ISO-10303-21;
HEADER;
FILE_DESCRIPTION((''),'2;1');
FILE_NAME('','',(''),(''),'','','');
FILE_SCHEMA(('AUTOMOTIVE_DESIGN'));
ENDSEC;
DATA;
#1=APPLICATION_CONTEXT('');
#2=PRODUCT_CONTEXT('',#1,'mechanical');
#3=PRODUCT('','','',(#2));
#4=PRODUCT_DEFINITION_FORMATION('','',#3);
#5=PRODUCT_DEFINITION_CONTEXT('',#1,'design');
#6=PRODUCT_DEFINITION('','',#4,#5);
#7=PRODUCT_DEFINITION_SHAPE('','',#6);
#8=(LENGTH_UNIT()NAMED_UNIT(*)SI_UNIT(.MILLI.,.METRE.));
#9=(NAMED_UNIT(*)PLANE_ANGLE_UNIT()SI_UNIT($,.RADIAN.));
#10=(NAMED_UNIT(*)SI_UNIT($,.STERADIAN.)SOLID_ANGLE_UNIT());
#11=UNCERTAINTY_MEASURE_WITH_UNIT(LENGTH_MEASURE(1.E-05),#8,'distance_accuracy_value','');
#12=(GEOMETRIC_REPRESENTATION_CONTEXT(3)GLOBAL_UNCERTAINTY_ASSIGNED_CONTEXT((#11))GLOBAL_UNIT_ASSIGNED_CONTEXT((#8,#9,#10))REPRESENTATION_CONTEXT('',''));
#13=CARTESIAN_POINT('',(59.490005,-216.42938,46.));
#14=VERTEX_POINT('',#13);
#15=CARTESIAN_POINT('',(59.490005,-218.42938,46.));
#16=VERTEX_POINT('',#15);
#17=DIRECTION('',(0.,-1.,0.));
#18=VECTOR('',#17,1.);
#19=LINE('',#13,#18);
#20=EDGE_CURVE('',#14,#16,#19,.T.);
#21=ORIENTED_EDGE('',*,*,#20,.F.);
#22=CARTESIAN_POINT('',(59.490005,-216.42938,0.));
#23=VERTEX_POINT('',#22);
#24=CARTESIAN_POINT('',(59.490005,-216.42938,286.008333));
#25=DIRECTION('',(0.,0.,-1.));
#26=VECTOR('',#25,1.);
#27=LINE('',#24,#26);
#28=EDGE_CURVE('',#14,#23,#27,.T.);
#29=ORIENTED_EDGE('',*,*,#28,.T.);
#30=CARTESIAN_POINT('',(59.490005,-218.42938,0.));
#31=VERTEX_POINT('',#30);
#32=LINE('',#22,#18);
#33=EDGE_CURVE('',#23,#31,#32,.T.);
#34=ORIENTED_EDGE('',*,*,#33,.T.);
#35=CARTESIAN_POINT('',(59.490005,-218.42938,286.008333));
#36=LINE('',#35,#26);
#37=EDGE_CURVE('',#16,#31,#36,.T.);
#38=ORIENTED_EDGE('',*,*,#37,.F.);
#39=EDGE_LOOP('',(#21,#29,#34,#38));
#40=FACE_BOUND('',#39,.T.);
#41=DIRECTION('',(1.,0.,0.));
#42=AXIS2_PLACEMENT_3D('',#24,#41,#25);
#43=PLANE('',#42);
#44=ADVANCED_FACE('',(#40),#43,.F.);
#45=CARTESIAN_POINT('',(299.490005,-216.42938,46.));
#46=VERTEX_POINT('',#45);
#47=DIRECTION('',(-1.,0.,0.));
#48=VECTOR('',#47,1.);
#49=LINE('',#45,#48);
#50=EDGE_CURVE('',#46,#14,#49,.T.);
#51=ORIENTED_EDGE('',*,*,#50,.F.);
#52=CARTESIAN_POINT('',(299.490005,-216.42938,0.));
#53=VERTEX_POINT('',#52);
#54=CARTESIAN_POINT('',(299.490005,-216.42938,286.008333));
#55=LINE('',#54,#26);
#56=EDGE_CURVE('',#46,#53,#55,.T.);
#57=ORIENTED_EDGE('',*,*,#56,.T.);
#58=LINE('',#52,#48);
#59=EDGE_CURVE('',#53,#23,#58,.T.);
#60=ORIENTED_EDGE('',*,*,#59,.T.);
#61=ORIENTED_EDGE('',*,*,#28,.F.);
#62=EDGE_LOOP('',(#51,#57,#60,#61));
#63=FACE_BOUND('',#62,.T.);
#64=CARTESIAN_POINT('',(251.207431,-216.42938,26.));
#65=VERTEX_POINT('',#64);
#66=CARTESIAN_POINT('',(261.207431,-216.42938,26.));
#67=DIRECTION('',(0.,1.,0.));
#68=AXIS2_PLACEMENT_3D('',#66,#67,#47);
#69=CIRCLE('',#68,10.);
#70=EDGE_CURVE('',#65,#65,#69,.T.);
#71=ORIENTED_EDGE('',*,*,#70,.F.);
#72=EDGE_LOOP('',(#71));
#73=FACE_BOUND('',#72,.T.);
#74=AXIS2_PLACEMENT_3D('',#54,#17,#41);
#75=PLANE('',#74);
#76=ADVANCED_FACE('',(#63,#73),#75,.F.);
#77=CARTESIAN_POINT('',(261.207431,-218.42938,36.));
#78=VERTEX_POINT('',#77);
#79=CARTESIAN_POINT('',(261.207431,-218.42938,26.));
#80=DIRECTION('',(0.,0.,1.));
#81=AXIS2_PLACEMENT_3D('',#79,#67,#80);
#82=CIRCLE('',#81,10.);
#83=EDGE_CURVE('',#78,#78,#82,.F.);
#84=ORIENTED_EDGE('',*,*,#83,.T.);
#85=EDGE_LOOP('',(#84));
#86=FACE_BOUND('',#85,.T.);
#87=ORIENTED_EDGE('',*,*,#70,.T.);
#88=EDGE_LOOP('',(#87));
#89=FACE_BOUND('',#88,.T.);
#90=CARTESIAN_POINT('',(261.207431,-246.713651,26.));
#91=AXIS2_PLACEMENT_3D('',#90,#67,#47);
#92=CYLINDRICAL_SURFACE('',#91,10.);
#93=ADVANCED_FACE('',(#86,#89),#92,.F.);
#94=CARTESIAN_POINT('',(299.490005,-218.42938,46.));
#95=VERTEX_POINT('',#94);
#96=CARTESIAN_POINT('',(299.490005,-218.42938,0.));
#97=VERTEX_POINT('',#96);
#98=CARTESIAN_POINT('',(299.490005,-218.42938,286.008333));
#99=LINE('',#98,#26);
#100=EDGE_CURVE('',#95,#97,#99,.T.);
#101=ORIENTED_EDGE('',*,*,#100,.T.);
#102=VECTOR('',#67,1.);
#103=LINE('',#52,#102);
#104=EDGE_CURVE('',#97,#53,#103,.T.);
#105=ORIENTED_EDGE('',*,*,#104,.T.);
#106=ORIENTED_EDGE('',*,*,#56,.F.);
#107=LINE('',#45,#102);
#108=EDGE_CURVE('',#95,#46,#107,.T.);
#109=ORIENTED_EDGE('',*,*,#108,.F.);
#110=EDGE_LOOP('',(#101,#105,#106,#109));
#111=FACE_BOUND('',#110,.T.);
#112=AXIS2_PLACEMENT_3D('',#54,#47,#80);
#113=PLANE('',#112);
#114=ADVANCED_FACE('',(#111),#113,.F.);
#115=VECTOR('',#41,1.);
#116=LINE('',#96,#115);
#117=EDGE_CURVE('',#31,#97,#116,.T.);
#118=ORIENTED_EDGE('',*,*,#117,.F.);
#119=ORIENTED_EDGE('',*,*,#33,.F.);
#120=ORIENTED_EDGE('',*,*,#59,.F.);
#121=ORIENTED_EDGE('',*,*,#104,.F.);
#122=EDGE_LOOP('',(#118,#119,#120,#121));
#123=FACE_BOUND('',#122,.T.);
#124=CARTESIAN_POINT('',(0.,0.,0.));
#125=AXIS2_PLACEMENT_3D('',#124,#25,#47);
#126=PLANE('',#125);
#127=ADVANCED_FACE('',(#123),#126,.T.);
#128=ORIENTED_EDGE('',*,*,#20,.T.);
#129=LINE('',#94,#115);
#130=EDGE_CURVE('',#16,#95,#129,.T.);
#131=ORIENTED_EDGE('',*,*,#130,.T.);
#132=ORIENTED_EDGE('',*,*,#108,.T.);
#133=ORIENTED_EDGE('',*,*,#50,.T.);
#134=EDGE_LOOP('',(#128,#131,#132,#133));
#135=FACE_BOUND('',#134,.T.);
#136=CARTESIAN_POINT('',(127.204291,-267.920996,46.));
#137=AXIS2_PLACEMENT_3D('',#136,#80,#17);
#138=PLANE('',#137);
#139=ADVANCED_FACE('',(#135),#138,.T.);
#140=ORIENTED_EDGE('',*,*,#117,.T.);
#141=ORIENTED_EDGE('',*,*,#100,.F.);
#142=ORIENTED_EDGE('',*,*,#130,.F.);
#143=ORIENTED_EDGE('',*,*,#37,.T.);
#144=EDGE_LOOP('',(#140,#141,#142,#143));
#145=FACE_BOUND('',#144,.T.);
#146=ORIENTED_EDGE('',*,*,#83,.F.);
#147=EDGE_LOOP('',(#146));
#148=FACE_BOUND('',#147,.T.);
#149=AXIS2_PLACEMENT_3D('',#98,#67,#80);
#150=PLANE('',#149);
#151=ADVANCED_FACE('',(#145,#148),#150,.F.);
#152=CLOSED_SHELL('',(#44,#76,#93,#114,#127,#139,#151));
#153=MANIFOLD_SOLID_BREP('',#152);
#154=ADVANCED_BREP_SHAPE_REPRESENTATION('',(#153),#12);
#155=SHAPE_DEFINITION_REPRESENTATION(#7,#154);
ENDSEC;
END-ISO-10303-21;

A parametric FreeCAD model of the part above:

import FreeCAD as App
import Part
import Sketcher
from FreeCAD import Vector

doc = App.newDocument("Part")
body = doc.addObject("PartDesign::Body", "Body")

# Sketch on XY plane
sketch1 = body.newObject("Sketcher::SketchObject", "Sketch")
sketch1.AttachmentSupport = (doc.getObject("XY_Plane"), [""])
sketch1.MapMode = "FlatFace"
sketch1.addGeometry(Part.LineSegment(Vector(59.490005, -216.42938, 0), Vector(59.490005, -218.42938, 0)), False)
sketch1.addGeometry(Part.LineSegment(Vector(59.490005, -218.42938, 0), Vector(299.490005, -218.42938, 0)), False)
sketch1.addGeometry(Part.LineSegment(Vector(299.490005, -218.42938, 0), Vector(299.490005, -216.42938, 0)), False)
sketch1.addGeometry(Part.LineSegment(Vector(299.490005, -216.42938, 0), Vector(59.490005, -216.42938, 0)), False)
sketch1.addConstraint(Sketcher.Constraint("Coincident", 0, 2, 1, 1))
sketch1.addConstraint(Sketcher.Constraint("Coincident", 1, 2, 2, 1))
sketch1.addConstraint(Sketcher.Constraint("Coincident", 2, 2, 3, 1))
sketch1.addConstraint(Sketcher.Constraint("Coincident", 3, 2, 0, 1))
sketch1.addConstraint(Sketcher.Constraint("Vertical", 0))
sketch1.addConstraint(Sketcher.Constraint("Horizontal", 1))
sketch1.addConstraint(Sketcher.Constraint("Vertical", 2))
sketch1.addConstraint(Sketcher.Constraint("Horizontal", 3))
sketch1.addConstraint(Sketcher.Constraint("DistanceX", 1, 1, 1, 2, 240.0))
sketch1.addConstraint(Sketcher.Constraint("DistanceY", 0, 2, 0, 1, 2.0))
sketch1.addConstraint(Sketcher.Constraint("DistanceY", 0, 2, -1, 1, 218.42938))
sketch1.addConstraint(Sketcher.Constraint("DistanceX", -1, 1, 0, 2, 59.490005))
pad1 = body.newObject("PartDesign::Pad", "Pad")
pad1.Profile = sketch1
pad1.Length = 46

# Sketch on XZ plane
sketch2 = body.newObject("Sketcher::SketchObject", "Sketch001")
sketch2.AttachmentSupport = (doc.getObject("XZ_Plane"), [""])
sketch2.MapMode = "FlatFace"
sketch2.AttachmentOffset = App.Placement(Vector(0, 0, 216.42938), App.Rotation())
sketch2.addGeometry(Part.Circle(Vector(261.207431, 26, 0), Vector(0, 0, 1), 10), False)
sketch2.addConstraint(Sketcher.Constraint("Diameter", 0, 20.0))
sketch2.addConstraint(Sketcher.Constraint("DistanceY", -1, 1, 0, 3, 26.0))
sketch2.addConstraint(Sketcher.Constraint("DistanceX", -1, 1, 0, 3, 261.207431))
pocket1 = body.newObject("PartDesign::Pocket", "Pocket")
pocket1.Profile = sketch2
pocket1.Length = 2
pocket1.Reversed = True

doc.recompute()
